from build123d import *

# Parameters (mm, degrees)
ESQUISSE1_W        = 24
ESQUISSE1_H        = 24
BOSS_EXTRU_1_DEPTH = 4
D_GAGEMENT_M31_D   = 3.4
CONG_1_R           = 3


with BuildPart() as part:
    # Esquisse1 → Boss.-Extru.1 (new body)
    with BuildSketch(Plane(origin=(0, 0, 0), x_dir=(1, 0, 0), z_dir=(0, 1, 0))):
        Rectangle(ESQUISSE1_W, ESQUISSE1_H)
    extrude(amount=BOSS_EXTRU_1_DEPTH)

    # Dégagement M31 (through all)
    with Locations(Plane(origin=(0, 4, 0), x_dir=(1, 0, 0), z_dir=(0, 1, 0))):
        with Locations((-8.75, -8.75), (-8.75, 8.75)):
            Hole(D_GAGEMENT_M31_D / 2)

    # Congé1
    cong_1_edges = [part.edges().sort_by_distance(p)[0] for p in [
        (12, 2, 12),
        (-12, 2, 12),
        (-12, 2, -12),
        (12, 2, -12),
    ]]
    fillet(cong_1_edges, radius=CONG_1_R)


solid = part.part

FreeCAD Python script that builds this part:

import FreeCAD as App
import Part
import Sketcher


def edges_at(feature, points):
    """Names of the edges that pass closest to the given points."""
    edges = feature.Shape.Edges
    near = lambda p: min(range(len(edges)), key=lambda i: edges[i].distToShape(Part.Vertex(*p))[0])
    return sorted({f"Edge{near(p) + 1}" for p in points})

doc = App.newDocument("Part")
params = doc.addObject("Spreadsheet::Sheet", "Params")
for row, (alias, value) in enumerate([
    ("sketch1_width", "24 mm"),
    ("pad1_length", "4 mm"),
    ("sketch2_diameter", "3.4 mm"),
    ("hole_diameter", "3.4 mm"),
    ("fillet_radius", "3 mm"),
], start=1):
    params.set(f"A{row}", alias)
    params.set(f"B{row}", "=" + value)
    params.setAlias(f"B{row}", alias)

body = doc.addObject("PartDesign::Body", "Body")

sketch1 = body.newObject("Sketcher::SketchObject", "Sketch")
sketch1.AttachmentSupport = (doc.getObject("XZ_Plane"), [""])
sketch1.MapMode = "FlatFace"
sketch1.addGeometry([
    Part.LineSegment(App.Vector(-12, -12, 0), App.Vector(-12, 12, 0)),
    Part.LineSegment(App.Vector(-12, 12, 0), App.Vector(12, 12, 0)),
    Part.LineSegment(App.Vector(12, 12, 0), App.Vector(12, -12, 0)),
    Part.LineSegment(App.Vector(12, -12, 0), App.Vector(-12, -12, 0)),
], False)
sketch1.addConstraint([
    Sketcher.Constraint("Coincident", 0, 2, 1, 1),
    Sketcher.Constraint("Coincident", 1, 2, 2, 1),
    Sketcher.Constraint("Coincident", 2, 2, 3, 1),
    Sketcher.Constraint("Coincident", 3, 2, 0, 1),
    Sketcher.Constraint("Vertical", 0),
    Sketcher.Constraint("Horizontal", 1),
    Sketcher.Constraint("Vertical", 2),
    Sketcher.Constraint("Horizontal", 3),
    Sketcher.Constraint("Symmetric", 0, 2, 2, 2, -1, 1),
    Sketcher.Constraint("Equal", 3, 0),
    Sketcher.Constraint("DistanceX", 1, 1, 1, 2, 24.0),
])
sketch1.setExpression("Constraints[10]", "Params.sketch1_width")
pad1 = body.newObject("PartDesign::Pad", "Pad")
pad1.Profile = sketch1
pad1.setExpression("Length", "Params.pad1_length")
pad1.Reversed = True

sketch2 = body.newObject("Sketcher::SketchObject", "Sketch001")
sketch2.AttachmentSupport = (doc.getObject("XZ_Plane"), [""])
sketch2.MapMode = "FlatFace"
sketch2.AttachmentOffset = App.Placement(App.Vector(0, 0, -4), App.Rotation())
sketch2.addGeometry([
    Part.Circle(App.Vector(-8.8, 8.8, 0), App.Vector(0, 0, 1), 1.7),
    Part.Circle(App.Vector(-8.8, -8.8, 0), App.Vector(0, 0, 1), 1.7),
], False)
sketch2.addConstraint([
    Sketcher.Constraint("Equal", 0, 1),
    Sketcher.Constraint("Symmetric", 0, 3, 1, 3, -1),
    Sketcher.Constraint("Diameter", 0, 3.4),
    Sketcher.Constraint("DistanceY", 1, 3, 0, 3, 17.5),
    Sketcher.Constraint("DistanceX", 0, 3, -1, 1, 8.75),
])
sketch2.setExpression("Constraints[2]", "Params.sketch2_diameter")
doc.recompute()
hole = body.newObject("PartDesign::Hole", "Hole")
hole.Profile = sketch2
hole.ThreadType = "None"
hole.setExpression("Diameter", "Params.hole_diameter")
hole.DepthType = "ThroughAll"
hole.Reversed = True
doc.recompute()

fillet = body.newObject("PartDesign::Fillet", "Fillet")
fillet.Base = (hole, edges_at(hole, [
    (12, 2, 12),
    (-12, 2, 12),
    (-12, 2, -12),
    (12, 2, -12),
]))
fillet.setExpression("Radius", "Params.fillet_radius")

doc.recompute()
